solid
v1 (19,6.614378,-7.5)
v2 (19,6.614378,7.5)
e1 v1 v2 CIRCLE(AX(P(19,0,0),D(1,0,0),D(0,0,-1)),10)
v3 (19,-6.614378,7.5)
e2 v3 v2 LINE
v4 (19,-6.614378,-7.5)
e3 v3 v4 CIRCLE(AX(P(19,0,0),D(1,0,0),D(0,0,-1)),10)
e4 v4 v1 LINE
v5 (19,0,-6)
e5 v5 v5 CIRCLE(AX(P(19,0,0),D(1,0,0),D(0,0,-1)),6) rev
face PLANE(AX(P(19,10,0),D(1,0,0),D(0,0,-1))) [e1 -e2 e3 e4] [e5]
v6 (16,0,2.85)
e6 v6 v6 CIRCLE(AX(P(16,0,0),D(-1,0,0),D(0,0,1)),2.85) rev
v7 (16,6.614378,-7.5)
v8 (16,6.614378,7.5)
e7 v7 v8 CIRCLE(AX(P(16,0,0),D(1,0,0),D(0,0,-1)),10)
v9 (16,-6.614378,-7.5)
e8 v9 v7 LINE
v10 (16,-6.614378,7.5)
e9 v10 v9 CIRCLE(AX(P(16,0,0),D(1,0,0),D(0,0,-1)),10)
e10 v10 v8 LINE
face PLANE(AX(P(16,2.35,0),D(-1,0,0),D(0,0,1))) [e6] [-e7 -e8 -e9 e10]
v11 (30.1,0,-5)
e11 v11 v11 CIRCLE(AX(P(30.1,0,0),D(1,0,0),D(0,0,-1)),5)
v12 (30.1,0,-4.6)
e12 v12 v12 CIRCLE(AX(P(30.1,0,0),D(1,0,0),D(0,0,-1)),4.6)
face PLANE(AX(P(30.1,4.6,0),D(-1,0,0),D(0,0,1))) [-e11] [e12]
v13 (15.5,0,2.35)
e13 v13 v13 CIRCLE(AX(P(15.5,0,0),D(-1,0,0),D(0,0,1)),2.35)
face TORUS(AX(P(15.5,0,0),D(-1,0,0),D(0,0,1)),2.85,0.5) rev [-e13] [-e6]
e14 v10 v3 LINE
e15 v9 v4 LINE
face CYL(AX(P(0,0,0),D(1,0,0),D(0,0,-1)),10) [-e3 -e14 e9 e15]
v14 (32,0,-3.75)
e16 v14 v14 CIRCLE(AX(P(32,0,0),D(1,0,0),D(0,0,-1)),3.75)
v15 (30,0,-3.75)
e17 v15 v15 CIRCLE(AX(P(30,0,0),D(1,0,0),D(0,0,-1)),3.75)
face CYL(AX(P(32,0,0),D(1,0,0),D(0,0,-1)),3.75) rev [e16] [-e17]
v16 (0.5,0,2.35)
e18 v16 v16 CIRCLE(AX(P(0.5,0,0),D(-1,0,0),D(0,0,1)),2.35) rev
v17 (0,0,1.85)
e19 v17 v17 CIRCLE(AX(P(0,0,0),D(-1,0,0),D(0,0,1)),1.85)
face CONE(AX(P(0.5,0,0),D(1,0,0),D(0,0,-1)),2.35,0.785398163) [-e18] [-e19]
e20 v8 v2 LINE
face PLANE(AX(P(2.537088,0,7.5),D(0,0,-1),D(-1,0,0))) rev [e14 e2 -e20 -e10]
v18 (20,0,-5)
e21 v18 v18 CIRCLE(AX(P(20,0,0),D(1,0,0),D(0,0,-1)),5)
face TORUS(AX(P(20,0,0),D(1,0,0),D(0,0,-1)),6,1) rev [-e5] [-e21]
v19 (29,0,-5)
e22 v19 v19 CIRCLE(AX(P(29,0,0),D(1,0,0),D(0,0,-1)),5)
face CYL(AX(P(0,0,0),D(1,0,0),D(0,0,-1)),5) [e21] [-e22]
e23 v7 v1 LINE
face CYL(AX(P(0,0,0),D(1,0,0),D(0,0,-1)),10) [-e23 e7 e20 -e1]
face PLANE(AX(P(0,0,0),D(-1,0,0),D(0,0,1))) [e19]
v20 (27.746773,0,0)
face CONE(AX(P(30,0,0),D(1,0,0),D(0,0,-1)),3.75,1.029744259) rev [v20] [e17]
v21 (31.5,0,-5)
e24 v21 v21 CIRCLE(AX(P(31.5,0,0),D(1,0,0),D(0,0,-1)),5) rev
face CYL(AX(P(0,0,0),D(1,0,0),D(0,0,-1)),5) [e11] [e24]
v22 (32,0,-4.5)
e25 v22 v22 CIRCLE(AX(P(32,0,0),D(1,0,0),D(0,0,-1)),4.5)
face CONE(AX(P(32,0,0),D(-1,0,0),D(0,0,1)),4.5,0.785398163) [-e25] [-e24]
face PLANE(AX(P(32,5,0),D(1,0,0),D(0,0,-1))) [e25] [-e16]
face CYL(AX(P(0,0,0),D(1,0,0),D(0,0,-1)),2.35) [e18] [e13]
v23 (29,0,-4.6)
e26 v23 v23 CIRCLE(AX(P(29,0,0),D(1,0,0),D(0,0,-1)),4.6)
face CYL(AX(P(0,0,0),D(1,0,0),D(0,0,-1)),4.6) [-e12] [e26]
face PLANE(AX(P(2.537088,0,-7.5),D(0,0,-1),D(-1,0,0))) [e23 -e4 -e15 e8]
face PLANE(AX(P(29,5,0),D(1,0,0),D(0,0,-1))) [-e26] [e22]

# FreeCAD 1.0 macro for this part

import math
import FreeCAD as App
import Part
import Sketcher
Q = App.Units.Quantity


def edges_at(feature, points):
    """Names of the edges that pass closest to the given points."""
    edges = feature.Shape.Edges
    near = lambda p: min(range(len(edges)), key=lambda i: edges[i].distToShape(Part.Vertex(*p))[0])
    return sorted({f"Edge{near(p) + 1}" for p in points})

doc = App.newDocument("Part")
body = doc.addObject("PartDesign::Body", "Body")

# Sketch on XY plane
sketch1 = body.newObject("Sketcher::SketchObject", "Sketch")
sketch1.AttachmentSupport = (doc.getObject("XY_Plane"), [""])
sketch1.MapMode = "FlatFace"
sketch1.addGeometry(Part.LineSegment(App.Vector(0, 2.35, 0), App.Vector(0, 0, 0)), False)
sketch1.addGeometry(Part.LineSegment(App.Vector(0, 0, 0), App.Vector(32, 0, 0)), False)
sketch1.addGeometry(Part.LineSegment(App.Vector(32, 0, 0), App.Vector(32, 5, 0)), False)
sketch1.addGeometry(Part.LineSegment(App.Vector(32, 5, 0), App.Vector(30.1, 5, 0)), False)
sketch1.addGeometry(Part.LineSegment(App.Vector(30.1, 5, 0), App.Vector(30.1, 4.6, 0)), False)
sketch1.addGeometry(Part.LineSegment(App.Vector(30.1, 4.6, 0), App.Vector(29, 4.6, 0)), False)
sketch1.addGeometry(Part.LineSegment(App.Vector(29, 4.6, 0), App.Vector(29, 5, 0)), False)
sketch1.addGeometry(Part.LineSegment(App.Vector(29, 5, 0), App.Vector(19, 5, 0)), False)
sketch1.addGeometry(Part.LineSegment(App.Vector(19, 5, 0), App.Vector(19, 10, 0)), False)
sketch1.addGeometry(Part.LineSegment(App.Vector(19, 10, 0), App.Vector(16, 10, 0)), False)
sketch1.addGeometry(Part.LineSegment(App.Vector(16, 10, 0), App.Vector(16, 2.35, 0)), False)
sketch1.addGeometry(Part.LineSegment(App.Vector(16, 2.35, 0), App.Vector(0, 2.35, 0)), False)
sketch1.addConstraint(Sketcher.Constraint("Coincident", 0, 2, 1, 1))
sketch1.addConstraint(Sketcher.Constraint("Coincident", 1, 2, 2, 1))
sketch1.addConstraint(Sketcher.Constraint("Coincident", 2, 2, 3, 1))
sketch1.addConstraint(Sketcher.Constraint("Coincident", 3, 2, 4, 1))
sketch1.addConstraint(Sketcher.Constraint("Coincident", 4, 2, 5, 1))
sketch1.addConstraint(Sketcher.Constraint("Coincident", 5, 2, 6, 1))
sketch1.addConstraint(Sketcher.Constraint("Coincident", 6, 2, 7, 1))
sketch1.addConstraint(Sketcher.Constraint("Coincident", 7, 2, 8, 1))
sketch1.addConstraint(Sketcher.Constraint("Coincident", 8, 2, 9, 1))
sketch1.addConstraint(Sketcher.Constraint("Coincident", 9, 2, 10, 1))
sketch1.addConstraint(Sketcher.Constraint("Coincident", 10, 2, 11, 1))
sketch1.addConstraint(Sketcher.Constraint("Coincident", 11, 2, 0, 1))
sketch1.addConstraint(Sketcher.Constraint("Vertical", 0))
sketch1.addConstraint(Sketcher.Constraint("Horizontal", 1))
sketch1.addConstraint(Sketcher.Constraint("Vertical", 2))
sketch1.addConstraint(Sketcher.Constraint("Horizontal", 3))
sketch1.addConstraint(Sketcher.Constraint("Vertical", 4))
sketch1.addConstraint(Sketcher.Constraint("Horizontal", 5))
sketch1.addConstraint(Sketcher.Constraint("Vertical", 6))
sketch1.addConstraint(Sketcher.Constraint("Horizontal", 7))
sketch1.addConstraint(Sketcher.Constraint("Vertical", 8))
sketch1.addConstraint(Sketcher.Constraint("Horizontal", 9))
sketch1.addConstraint(Sketcher.Constraint("Vertical", 10))
sketch1.addConstraint(Sketcher.Constraint("Horizontal", 11))
sketch1.addConstraint(Sketcher.Constraint("Coincident", 0, 2, -1, 1))
sketch1.addConstraint(Sketcher.Constraint("Horizontal", 3, 2, 6, 2))
sketch1.addConstraint(Sketcher.Constraint("Equal", 2, 8))
sketch1.addConstraint(Sketcher.Constraint("DistanceX", 1, 1, 1, 2, Q("32 mm")))
sketch1.addConstraint(Sketcher.Constraint("DistanceX", 7, 2, 7, 1, Q("10 mm")))
sketch1.addConstraint(Sketcher.Constraint("DistanceX", 9, 2, 9, 1, Q("3 mm")))
sketch1.addConstraint(Sketcher.Constraint("DistanceX", 11, 2, 11, 1, Q("16 mm")))
sketch1.addConstraint(Sketcher.Constraint("DistanceY", 2, 1, 2, 2, Q("5 mm")))
sketch1.addConstraint(Sketcher.Constraint("DistanceX", 3, 2, 3, 1, Q("1.9 mm")))
sketch1.addConstraint(Sketcher.Constraint("DistanceY", 4, 2, 4, 1, Q("0.4 mm")))
sketch1.addConstraint(Sketcher.Constraint("DistanceY", 0, 2, 0, 1, Q("2.35 mm")))
revolution = body.newObject("PartDesign::Revolution", "Revolution")
revolution.Profile = sketch1
revolution.ReferenceAxis = (sketch1, ["H_Axis"])
revolution.Angle = 360
doc.recompute()

chamfer = body.newObject("PartDesign::Chamfer", "Chamfer")
chamfer.Base = (revolution, edges_at(revolution, [(0, 0, 2.35)]))
chamfer.Size = 0.5
doc.recompute()

fillet = body.newObject("PartDesign::Fillet", "Fillet")
fillet.Base = (chamfer, edges_at(chamfer, [(16, 0, 2.35)]))
fillet.Radius = 0.5

# Sketch on YZ plane
sketch2 = body.newObject("Sketcher::SketchObject", "Sketch001")
sketch2.AttachmentSupport = (doc.getObject("YZ_Plane"), [""])
sketch2.MapMode = "FlatFace"
sketch2.AttachmentOffset = App.Placement(App.Vector(0, 0, 32), App.Rotation())
sketch2.addGeometry(Part.Circle(App.Vector(0, 0, 0), App.Vector(0, 0, 1), 3.75), False)
sketch2.addConstraint(Sketcher.Constraint("Coincident", 0, 3, -1, 1))
sketch2.addConstraint(Sketcher.Constraint("Diameter", 0, Q("7.5 mm")))
doc.recompute()
hole = body.newObject("PartDesign::Hole", "Hole")
hole.Profile = sketch2
hole.ThreadType = "None"
hole.Diameter = 7.5
hole.DepthType = "Dimension"
hole.Depth = 2
hole.DrillPoint = "Angled"
hole.DrillPointAngle = 118
doc.recompute()

fillet2 = body.newObject("PartDesign::Fillet", "Fillet001")
fillet2.Base = (hole, edges_at(hole, [(19, 0, 5)]))
fillet2.Radius = 1
doc.recompute()

chamfer2 = body.newObject("PartDesign::Chamfer", "Chamfer001")
chamfer2.Base = (fillet2, edges_at(fillet2, [(32, 0, 5)]))
chamfer2.Size = 0.5

# Sketch on YZ plane
sketch3 = body.newObject("Sketcher::SketchObject", "Sketch002")
sketch3.AttachmentSupport = (doc.getObject("YZ_Plane"), [""])
sketch3.MapMode = "FlatFace"
sketch3.AttachmentOffset = App.Placement(App.Vector(0, 0, 19), App.Rotation())
sketch3.addGeometry(Part.LineSegment(App.Vector(6.614378, -7.5, 0), App.Vector(-6.614378, -7.5, 0)), False)
sketch3.addGeometry(Part.ArcOfCircle(Part.Circle(App.Vector(0, 0, 0), App.Vector(0, 0, 1), 10), math.radians(-131.409622), math.radians(-90)), False)
sketch3.addGeometry(Part.ArcOfCircle(Part.Circle(App.Vector(0, 0, 0), App.Vector(0, 0, 1), 10), math.radians(-90), math.radians(-48.590378)), False)
sketch3.addGeometry(Part.ArcOfCircle(Part.Circle(App.Vector(0, 0, 0), App.Vector(0, 0, 1), 10), math.radians(48.590378), math.radians(131.409622)), False)
sketch3.addGeometry(Part.LineSegment(App.Vector(-6.614378, 7.5, 0), App.Vector(6.614378, 7.5, 0)), False)
sketch3.addConstraint(Sketcher.Constraint("Coincident", 0, 2, 1, 1))
sketch3.addConstraint(Sketcher.Constraint("Tangent", 1, 2, 2, 1))
sketch3.addConstraint(Sketcher.Constraint("Coincident", 2, 2, 0, 1))
sketch3.addConstraint(Sketcher.Constraint("Coincident", 3, 1, 4, 2))
sketch3.addConstraint(Sketcher.Constraint("Coincident", 4, 1, 3, 2))
sketch3.addConstraint(Sketcher.Constraint("Horizontal", 0))
sketch3.addConstraint(Sketcher.Constraint("Horizontal", 4))
sketch3.addConstraint(Sketcher.Constraint("Coincident", 1, 3, -1, 1))
sketch3.addConstraint(Sketcher.Constraint("Coincident", 3, 3, -1, 1))
sketch3.addConstraint(Sketcher.Constraint("Equal", 1, 2))
sketch3.addConstraint(Sketcher.Constraint("Equal", 2, 3))
sketch3.addConstraint(Sketcher.Constraint("PointOnObject", 1, 2, -2))
sketch3.addConstraint(Sketcher.Constraint("Vertical", 2, 2, 3, 1))
sketch3.addConstraint(Sketcher.Constraint("Radius", 1, Q("10 mm")))
sketch3.addConstraint(Sketcher.Constraint("DistanceY", 2, 2, 3, 1, Q("15 mm")))
pocket1 = body.newObject("PartDesign::Pocket", "Pocket")
pocket1.Profile = sketch3
pocket1.Length = 3

doc.recompute()
